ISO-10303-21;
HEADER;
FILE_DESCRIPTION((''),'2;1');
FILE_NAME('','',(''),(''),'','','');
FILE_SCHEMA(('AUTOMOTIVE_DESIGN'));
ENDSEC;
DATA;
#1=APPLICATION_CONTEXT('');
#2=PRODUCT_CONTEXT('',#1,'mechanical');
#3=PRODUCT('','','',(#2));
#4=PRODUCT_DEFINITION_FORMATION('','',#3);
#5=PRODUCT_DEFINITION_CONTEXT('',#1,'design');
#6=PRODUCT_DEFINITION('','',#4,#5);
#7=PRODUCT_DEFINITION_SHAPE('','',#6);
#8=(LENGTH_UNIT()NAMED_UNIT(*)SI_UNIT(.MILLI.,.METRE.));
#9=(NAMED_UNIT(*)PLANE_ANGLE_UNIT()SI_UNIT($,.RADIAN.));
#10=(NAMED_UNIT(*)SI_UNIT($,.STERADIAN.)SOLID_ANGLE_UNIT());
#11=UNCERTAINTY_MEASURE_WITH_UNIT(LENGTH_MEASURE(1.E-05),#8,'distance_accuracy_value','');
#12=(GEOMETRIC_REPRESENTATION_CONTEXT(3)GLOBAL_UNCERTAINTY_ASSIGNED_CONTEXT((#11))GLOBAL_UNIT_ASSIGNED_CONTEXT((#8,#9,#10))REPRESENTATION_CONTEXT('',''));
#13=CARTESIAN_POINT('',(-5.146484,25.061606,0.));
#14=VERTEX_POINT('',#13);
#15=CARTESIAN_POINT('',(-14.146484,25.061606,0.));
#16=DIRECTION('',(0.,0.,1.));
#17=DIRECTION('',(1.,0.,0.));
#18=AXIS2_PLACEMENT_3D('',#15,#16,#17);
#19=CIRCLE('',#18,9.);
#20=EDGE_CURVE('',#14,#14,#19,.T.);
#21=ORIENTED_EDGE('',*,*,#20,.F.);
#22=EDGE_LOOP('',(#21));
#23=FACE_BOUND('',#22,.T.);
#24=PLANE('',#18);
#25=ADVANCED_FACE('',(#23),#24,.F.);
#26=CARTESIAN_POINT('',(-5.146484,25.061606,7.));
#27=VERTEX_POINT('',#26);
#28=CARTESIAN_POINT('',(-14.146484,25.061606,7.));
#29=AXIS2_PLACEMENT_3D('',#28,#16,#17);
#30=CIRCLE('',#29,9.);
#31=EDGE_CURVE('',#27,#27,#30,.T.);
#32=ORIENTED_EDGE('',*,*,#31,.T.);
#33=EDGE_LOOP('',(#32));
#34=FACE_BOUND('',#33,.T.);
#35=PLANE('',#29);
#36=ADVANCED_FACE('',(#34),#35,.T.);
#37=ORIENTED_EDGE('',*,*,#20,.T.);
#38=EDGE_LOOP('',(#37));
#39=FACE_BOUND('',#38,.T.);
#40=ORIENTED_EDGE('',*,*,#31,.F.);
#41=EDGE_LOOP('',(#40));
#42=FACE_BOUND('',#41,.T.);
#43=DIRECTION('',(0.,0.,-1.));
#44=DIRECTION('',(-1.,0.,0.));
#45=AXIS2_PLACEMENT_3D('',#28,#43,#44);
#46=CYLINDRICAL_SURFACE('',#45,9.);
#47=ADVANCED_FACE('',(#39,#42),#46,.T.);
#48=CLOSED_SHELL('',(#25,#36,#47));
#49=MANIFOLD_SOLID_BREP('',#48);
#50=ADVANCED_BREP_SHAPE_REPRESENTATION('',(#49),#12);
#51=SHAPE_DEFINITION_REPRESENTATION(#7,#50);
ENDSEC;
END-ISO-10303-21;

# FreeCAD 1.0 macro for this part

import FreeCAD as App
import Part
import Sketcher
from FreeCAD import Vector

doc = App.newDocument("Part")
body = doc.addObject("PartDesign::Body", "Body")

# Sketch on XY plane
sketch1 = body.newObject("Sketcher::SketchObject", "Sketch")
sketch1.AttachmentSupport = (doc.getObject("XY_Plane"), [""])
sketch1.MapMode = "FlatFace"
sketch1.addGeometry(Part.Circle(Vector(-14, 25, 0), Vector(0, 0, 1), 9), False)
sketch1.addConstraint([
    Sketcher.Constraint("Diameter", 0, 18.0),
    Sketcher.Constraint("DistanceX", 0, 3, -1, 1, 14.146484),
    Sketcher.Constraint("DistanceY", -1, 1, 0, 3, 25.061606),
])
pad1 = body.newObject("PartDesign::Pad", "Pad")
pad1.Profile = sketch1
pad1.Length = 7

doc.recompute()
